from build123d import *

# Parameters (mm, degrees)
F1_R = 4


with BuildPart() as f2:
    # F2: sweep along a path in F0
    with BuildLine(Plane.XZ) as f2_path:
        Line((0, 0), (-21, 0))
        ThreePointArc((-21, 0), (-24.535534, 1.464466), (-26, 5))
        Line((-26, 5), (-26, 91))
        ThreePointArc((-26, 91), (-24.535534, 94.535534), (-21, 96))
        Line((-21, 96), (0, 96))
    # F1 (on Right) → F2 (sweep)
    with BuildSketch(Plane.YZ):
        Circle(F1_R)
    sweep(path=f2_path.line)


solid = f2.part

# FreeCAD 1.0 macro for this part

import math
import FreeCAD as App
import Part
import Sketcher
Q = App.Units.Quantity

doc = App.newDocument("Part")
body = doc.addObject("PartDesign::Body", "Body")

sketch1 = doc.addObject("Sketcher::SketchObject", "Sketch")
body.addObject(sketch1)
sketch1.AttachmentSupport = (doc.YZ_Plane, [""])
sketch1.MapMode = "FlatFace"
sketch1.addGeometry(Part.Circle(App.Vector(0, 0, 0), App.Vector(0, 0, 1), 4), False)
sketch1.addConstraint([
    Sketcher.Constraint("Coincident", 0, 3, -1, 1),
    Sketcher.Constraint("Diameter", 0, Q("8 mm")),
])

sketch2 = doc.addObject("Sketcher::SketchObject", "Sketch001")
body.addObject(sketch2)
sketch2.AttachmentSupport = (doc.XZ_Plane, [""])
sketch2.MapMode = "FlatFace"
sketch2.addGeometry([
    Part.LineSegment(App.Vector(0, 0, 0), App.Vector(-21, 0, 0)),
    Part.ArcOfCircle(Part.Circle(App.Vector(-21, 5, 0), App.Vector(0, 0, 1), 5), math.radians(180), math.radians(270)),
    Part.LineSegment(App.Vector(-26, 5, 0), App.Vector(-26, 91, 0)),
    Part.ArcOfCircle(Part.Circle(App.Vector(-21, 91, 0), App.Vector(0, 0, 1), 5), math.radians(90), math.radians(180)),
    Part.LineSegment(App.Vector(-21, 96, 0), App.Vector(0, 96, 0)),
], False)
sketch2.addConstraint([
    Sketcher.Constraint("Tangent", 0, 2, 1, 2),
    Sketcher.Constraint("Tangent", 1, 1, 2, 1),
    Sketcher.Constraint("Tangent", 2, 2, 3, 2),
    Sketcher.Constraint("Tangent", 3, 1, 4, 1),
    Sketcher.Constraint("Horizontal", 0),
    Sketcher.Constraint("Vertical", 2),
    Sketcher.Constraint("Horizontal", 4),
    Sketcher.Constraint("Coincident", 0, 1, -1, 1),
    Sketcher.Constraint("Equal", 1, 3),
    Sketcher.Constraint("PointOnObject", 4, 2, -2),
    Sketcher.Constraint("Radius", 1, Q("5 mm")),
    Sketcher.Constraint("DistanceX", 0, 2, 0, 1, Q("21 mm")),
    Sketcher.Constraint("DistanceY", 2, 1, 2, 2, Q("86 mm")),
])
doc.recompute()

additivepipe = doc.addObject("PartDesign::AdditivePipe", "AdditivePipe")
body.addObject(additivepipe)
additivepipe.Profile = sketch1
additivepipe.Spine = (sketch2, ["Edge1", "Edge2", "Edge3", "Edge4", "Edge5"])

doc.recompute()
